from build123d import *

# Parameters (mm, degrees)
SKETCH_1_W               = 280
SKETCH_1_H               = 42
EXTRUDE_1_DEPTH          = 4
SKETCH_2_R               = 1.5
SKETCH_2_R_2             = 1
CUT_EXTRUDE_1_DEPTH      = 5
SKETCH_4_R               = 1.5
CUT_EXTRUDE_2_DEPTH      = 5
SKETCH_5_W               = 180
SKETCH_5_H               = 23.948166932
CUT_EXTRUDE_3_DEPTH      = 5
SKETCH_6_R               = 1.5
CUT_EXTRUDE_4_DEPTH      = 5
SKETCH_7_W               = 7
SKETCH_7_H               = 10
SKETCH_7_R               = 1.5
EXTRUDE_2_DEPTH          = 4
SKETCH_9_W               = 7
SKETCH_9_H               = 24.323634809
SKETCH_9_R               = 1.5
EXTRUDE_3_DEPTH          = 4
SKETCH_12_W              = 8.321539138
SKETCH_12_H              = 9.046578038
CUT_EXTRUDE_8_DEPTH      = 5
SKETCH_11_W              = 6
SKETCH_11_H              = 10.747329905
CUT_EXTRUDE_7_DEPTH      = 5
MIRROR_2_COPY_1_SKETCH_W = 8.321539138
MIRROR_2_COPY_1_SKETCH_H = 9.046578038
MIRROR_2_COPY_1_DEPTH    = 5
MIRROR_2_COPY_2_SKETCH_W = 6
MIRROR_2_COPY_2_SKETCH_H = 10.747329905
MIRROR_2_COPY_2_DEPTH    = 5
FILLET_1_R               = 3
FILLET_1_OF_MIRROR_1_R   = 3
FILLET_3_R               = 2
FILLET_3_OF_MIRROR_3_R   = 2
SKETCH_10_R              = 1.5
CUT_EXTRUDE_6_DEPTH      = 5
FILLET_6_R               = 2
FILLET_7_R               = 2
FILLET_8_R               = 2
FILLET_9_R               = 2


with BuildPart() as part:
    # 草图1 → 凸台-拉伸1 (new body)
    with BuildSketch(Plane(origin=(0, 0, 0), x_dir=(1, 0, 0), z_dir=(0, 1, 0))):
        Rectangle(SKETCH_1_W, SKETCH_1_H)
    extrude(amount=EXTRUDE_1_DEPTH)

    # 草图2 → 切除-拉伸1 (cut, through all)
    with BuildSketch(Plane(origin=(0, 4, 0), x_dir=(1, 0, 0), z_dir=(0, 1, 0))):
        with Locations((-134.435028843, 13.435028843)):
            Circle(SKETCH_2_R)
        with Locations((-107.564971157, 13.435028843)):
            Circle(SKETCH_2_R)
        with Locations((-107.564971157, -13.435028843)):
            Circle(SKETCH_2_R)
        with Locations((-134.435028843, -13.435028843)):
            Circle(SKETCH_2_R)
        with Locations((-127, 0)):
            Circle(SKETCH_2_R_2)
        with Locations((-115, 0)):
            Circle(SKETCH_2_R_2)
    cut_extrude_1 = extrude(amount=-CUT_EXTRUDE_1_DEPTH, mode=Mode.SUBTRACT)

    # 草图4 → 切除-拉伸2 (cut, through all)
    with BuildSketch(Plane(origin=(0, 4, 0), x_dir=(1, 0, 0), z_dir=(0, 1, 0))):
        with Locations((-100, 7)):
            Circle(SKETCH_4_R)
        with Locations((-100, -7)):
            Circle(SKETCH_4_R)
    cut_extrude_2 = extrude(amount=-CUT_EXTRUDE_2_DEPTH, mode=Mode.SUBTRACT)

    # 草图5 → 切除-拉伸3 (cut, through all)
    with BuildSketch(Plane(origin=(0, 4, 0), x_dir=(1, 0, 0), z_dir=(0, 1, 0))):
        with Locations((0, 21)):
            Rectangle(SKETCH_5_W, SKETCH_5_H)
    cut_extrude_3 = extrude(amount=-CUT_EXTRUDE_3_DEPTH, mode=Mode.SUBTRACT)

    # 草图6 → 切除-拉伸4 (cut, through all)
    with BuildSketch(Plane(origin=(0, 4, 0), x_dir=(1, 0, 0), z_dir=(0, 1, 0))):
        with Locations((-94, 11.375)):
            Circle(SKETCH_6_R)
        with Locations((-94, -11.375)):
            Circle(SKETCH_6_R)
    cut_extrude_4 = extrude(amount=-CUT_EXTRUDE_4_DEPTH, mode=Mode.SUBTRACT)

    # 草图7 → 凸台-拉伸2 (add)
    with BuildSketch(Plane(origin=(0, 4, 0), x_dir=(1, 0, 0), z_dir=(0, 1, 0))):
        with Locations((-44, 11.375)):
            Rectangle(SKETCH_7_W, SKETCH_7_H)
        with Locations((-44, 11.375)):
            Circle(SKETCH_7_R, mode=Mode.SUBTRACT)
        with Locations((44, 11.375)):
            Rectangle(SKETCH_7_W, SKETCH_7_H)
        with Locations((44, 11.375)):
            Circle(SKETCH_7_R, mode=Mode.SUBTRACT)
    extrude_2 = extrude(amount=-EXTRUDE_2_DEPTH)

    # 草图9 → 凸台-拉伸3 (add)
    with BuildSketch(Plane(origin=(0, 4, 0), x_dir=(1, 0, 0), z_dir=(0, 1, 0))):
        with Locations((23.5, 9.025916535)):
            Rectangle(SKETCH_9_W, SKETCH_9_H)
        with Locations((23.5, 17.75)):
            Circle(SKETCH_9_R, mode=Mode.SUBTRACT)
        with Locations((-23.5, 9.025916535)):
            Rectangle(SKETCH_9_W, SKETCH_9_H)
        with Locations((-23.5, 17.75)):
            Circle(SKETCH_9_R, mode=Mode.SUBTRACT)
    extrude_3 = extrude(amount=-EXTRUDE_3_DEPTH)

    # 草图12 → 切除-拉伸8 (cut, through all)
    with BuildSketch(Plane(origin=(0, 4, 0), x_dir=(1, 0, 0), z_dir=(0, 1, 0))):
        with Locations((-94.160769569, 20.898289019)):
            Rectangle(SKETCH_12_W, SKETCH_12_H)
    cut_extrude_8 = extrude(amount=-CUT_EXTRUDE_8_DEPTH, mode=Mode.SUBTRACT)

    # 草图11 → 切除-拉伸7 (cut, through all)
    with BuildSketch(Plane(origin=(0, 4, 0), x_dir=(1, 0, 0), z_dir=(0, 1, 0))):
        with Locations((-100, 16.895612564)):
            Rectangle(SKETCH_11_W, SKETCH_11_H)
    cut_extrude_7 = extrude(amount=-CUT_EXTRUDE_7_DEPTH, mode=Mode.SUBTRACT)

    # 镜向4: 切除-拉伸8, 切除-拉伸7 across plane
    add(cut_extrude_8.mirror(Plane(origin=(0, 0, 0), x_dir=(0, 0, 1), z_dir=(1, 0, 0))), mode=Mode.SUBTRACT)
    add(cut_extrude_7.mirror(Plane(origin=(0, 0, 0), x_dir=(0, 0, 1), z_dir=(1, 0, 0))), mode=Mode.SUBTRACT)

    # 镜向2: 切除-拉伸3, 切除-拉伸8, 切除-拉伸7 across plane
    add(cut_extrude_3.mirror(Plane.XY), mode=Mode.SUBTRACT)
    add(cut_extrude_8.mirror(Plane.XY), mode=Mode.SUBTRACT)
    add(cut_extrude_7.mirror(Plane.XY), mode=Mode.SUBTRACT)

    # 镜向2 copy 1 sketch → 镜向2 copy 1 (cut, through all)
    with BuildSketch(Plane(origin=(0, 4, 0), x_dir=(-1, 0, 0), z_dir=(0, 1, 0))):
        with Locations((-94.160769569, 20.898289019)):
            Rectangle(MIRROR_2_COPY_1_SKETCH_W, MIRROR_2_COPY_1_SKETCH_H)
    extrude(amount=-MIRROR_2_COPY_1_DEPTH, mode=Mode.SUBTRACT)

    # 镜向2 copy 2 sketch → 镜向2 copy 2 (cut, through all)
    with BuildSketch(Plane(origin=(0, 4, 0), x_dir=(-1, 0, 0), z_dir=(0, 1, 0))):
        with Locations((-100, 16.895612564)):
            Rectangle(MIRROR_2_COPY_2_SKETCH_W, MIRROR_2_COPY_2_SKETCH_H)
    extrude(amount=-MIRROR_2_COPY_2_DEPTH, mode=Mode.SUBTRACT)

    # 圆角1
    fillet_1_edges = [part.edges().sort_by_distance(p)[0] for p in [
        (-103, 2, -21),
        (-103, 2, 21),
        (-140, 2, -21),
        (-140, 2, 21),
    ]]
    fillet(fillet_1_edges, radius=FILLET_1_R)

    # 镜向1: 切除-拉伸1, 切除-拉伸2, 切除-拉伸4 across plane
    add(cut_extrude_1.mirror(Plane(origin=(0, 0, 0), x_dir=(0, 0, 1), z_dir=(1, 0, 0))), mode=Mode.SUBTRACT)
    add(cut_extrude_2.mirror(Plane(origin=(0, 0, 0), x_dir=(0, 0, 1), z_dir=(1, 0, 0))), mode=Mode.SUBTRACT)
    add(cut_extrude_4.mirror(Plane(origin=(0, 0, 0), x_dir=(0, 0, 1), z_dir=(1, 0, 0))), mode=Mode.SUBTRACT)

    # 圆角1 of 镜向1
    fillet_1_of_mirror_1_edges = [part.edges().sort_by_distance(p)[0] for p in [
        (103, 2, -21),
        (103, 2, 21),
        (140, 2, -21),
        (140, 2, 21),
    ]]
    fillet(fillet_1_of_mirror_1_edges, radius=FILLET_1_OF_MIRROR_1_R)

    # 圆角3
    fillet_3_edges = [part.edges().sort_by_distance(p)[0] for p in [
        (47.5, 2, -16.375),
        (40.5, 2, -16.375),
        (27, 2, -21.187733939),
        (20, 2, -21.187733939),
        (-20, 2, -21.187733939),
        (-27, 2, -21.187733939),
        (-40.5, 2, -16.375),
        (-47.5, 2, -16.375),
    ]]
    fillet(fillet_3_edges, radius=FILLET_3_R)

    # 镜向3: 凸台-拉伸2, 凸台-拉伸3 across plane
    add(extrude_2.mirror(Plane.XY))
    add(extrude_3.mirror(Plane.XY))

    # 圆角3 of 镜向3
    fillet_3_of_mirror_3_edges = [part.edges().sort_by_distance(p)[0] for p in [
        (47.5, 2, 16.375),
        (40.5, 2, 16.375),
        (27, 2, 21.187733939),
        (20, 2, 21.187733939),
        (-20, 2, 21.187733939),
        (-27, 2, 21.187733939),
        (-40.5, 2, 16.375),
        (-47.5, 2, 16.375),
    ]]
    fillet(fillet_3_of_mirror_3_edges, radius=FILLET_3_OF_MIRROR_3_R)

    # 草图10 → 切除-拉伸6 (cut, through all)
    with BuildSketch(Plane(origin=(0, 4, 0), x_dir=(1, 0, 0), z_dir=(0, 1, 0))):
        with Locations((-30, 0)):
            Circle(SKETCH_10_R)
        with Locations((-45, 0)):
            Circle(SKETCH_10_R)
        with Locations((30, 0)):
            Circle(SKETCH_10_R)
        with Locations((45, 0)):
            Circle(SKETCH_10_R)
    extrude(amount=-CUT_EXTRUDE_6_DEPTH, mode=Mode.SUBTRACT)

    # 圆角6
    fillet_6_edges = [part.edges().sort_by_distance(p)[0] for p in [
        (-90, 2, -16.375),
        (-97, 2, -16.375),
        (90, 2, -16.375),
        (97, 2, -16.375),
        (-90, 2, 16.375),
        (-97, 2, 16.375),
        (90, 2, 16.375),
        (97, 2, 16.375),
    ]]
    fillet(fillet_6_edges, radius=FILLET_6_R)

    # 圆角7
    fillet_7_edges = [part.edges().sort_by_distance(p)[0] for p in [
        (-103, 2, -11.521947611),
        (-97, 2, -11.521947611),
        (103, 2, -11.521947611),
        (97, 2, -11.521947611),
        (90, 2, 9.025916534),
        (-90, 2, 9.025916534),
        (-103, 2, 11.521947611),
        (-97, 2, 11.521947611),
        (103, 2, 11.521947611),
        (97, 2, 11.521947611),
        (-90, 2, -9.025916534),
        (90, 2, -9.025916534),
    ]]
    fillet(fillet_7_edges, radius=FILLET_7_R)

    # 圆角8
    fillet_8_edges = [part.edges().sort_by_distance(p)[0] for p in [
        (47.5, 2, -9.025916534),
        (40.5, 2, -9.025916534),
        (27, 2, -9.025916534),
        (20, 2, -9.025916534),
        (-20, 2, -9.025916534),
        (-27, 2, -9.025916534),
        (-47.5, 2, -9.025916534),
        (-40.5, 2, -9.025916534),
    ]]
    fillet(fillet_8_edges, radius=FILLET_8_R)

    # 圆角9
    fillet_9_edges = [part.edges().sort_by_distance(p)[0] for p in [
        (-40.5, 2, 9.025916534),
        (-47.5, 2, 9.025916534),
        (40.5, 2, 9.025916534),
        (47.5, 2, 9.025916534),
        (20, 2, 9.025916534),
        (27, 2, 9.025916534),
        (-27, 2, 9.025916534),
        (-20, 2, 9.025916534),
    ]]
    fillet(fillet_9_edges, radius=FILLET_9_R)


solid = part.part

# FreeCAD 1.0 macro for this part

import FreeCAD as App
import Part
import Sketcher


def edges_at(feature, points):
    """Names of the edges that pass closest to the given points."""
    edges = feature.Shape.Edges
    near = lambda p: min(range(len(edges)), key=lambda i: edges[i].distToShape(Part.Vertex(*p))[0])
    return sorted({f"Edge{near(p) + 1}" for p in points})


def add_polygon(sketch, points):
    """Adds a closed chain of lines whose ends are joined by coincident constraints."""
    first, n = sketch.GeometryCount, len(points)
    for a, b in zip(points, points[1:] + points[:1]):
        sketch.addGeometry(Part.LineSegment(App.Vector(*a, 0), App.Vector(*b, 0)), False)
    for i in range(n):
        sketch.addConstraint(Sketcher.Constraint("Coincident", first + i, 2, first + (i + 1) % n, 1))

doc = App.newDocument("Part")
body = doc.addObject("PartDesign::Body", "Body")

# Sketch on XZ plane
sketch1 = body.newObject("Sketcher::SketchObject", "Sketch")
sketch1.AttachmentSupport = (doc.getObject("XZ_Plane"), [""])
sketch1.MapMode = "FlatFace"
add_polygon(sketch1, [(-140, -21), (-140, 21), (140, 21), (140, -21)])  # lines 0-3
sketch1.addConstraint(Sketcher.Constraint("Vertical", 0))
sketch1.addConstraint(Sketcher.Constraint("Horizontal", 1))
sketch1.addConstraint(Sketcher.Constraint("Vertical", 2))
sketch1.addConstraint(Sketcher.Constraint("Horizontal", 3))
sketch1.addConstraint(Sketcher.Constraint("Symmetric", 0, 2, 2, 2, -1, 1))
sketch1.addConstraint(Sketcher.Constraint("DistanceX", 1, 1, 1, 2, 280.0))
sketch1.addConstraint(Sketcher.Constraint("DistanceY", 0, 1, 0, 2, 42.0))
pad1 = body.newObject("PartDesign::Pad", "Pad")
pad1.Profile = sketch1
pad1.Length = 4
pad1.Reversed = True

# Sketch on XZ plane
sketch2 = body.newObject("Sketcher::SketchObject", "Sketch001")
sketch2.AttachmentSupport = (doc.getObject("XZ_Plane"), [""])
sketch2.MapMode = "FlatFace"
sketch2.AttachmentOffset = App.Placement(App.Vector(0, 0, -4), App.Rotation())
sketch2.addGeometry(Part.Circle(App.Vector(-134.435029, -13.435029, 0), App.Vector(0, 0, 1), 1.5), False)
sketch2.addGeometry(Part.Circle(App.Vector(-107.564971, -13.435029, 0), App.Vector(0, 0, 1), 1.5), False)
sketch2.addGeometry(Part.Circle(App.Vector(-107.564971, 13.435029, 0), App.Vector(0, 0, 1), 1.5), False)
sketch2.addGeometry(Part.Circle(App.Vector(-134.435029, 13.435029, 0), App.Vector(0, 0, 1), 1.5), False)
sketch2.addGeometry(Part.Circle(App.Vector(-127, 0, 0), App.Vector(0, 0, 1), 1), False)
sketch2.addGeometry(Part.Circle(App.Vector(-115, 0, 0), App.Vector(0, 0, 1), 1), False)
sketch2.addConstraint(Sketcher.Constraint("Equal", 0, 1))
sketch2.addConstraint(Sketcher.Constraint("Equal", 1, 2))
sketch2.addConstraint(Sketcher.Constraint("Equal", 2, 3))
sketch2.addConstraint(Sketcher.Constraint("Equal", 4, 5))
sketch2.addConstraint(Sketcher.Constraint("Symmetric", 1, 3, 2, 3, -1))
sketch2.addConstraint(Sketcher.Constraint("Symmetric", 0, 3, 3, 3, -1))
sketch2.addConstraint(Sketcher.Constraint("PointOnObject", 4, 3, -1))
sketch2.addConstraint(Sketcher.Constraint("PointOnObject", 5, 3, -1))
sketch2.addConstraint(Sketcher.Constraint("Horizontal", 0, 3, 1, 3))
sketch2.addConstraint(Sketcher.Constraint("Diameter", 0, 3.0))
sketch2.addConstraint(Sketcher.Constraint("Diameter", 4, 2.0))
sketch2.addConstraint(Sketcher.Constraint("DistanceX", 4, 3, -1, 1, 127.0))
sketch2.addConstraint(Sketcher.Constraint("DistanceX", 5, 3, -1, 1, 115.0))
sketch2.addConstraint(Sketcher.Constraint("DistanceX", 0, 3, -1, 1, 134.435029))
sketch2.addConstraint(Sketcher.Constraint("DistanceY", 0, 3, -1, 1, 13.435029))
sketch2.addConstraint(Sketcher.Constraint("DistanceX", 1, 3, -1, 1, 107.564971))
pocket1 = body.newObject("PartDesign::Pocket", "Pocket")
pocket1.Profile = sketch2
pocket1.Type = "ThroughAll"
pocket1.Reversed = True

# Sketch on XZ plane
sketch3 = body.newObject("Sketcher::SketchObject", "Sketch002")
sketch3.AttachmentSupport = (doc.getObject("XZ_Plane"), [""])
sketch3.MapMode = "FlatFace"
sketch3.AttachmentOffset = App.Placement(App.Vector(0, 0, -4), App.Rotation())
sketch3.addGeometry(Part.Circle(App.Vector(-100, -7, 0), App.Vector(0, 0, 1), 1.5), False)
sketch3.addGeometry(Part.Circle(App.Vector(-100, 7, 0), App.Vector(0, 0, 1), 1.5), False)
sketch3.addConstraint(Sketcher.Constraint("Equal", 0, 1))
sketch3.addConstraint(Sketcher.Constraint("Symmetric", 0, 3, 1, 3, -1))
sketch3.addConstraint(Sketcher.Constraint("Diameter", 0, 3.0))
sketch3.addConstraint(Sketcher.Constraint("DistanceX", 0, 3, -1, 1, 100.0))
sketch3.addConstraint(Sketcher.Constraint("DistanceY", 0, 3, -1, 1, 7.0))
pocket2 = body.newObject("PartDesign::Pocket", "Pocket001")
pocket2.Profile = sketch3
pocket2.Type = "ThroughAll"
pocket2.Reversed = True

# Sketch on XZ plane
sketch4 = body.newObject("Sketcher::SketchObject", "Sketch003")
sketch4.AttachmentSupport = (doc.getObject("XZ_Plane"), [""])
sketch4.MapMode = "FlatFace"
sketch4.AttachmentOffset = App.Placement(App.Vector(0, 0, -4), App.Rotation())
add_polygon(sketch4, [(-90, -32.974083), (-90, -9.025917), (90, -9.025917), (90, -32.974083)])  # lines 0-3
sketch4.addConstraint(Sketcher.Constraint("Vertical", 0))
sketch4.addConstraint(Sketcher.Constraint("Horizontal", 1))
sketch4.addConstraint(Sketcher.Constraint("Vertical", 2))
sketch4.addConstraint(Sketcher.Constraint("Horizontal", 3))
sketch4.addConstraint(Sketcher.Constraint("DistanceX", 1, 1, 1, 2, 180.0))
sketch4.addConstraint(Sketcher.Constraint("DistanceX", 0, 2, -1, 1, 90.0))
sketch4.addConstraint(Sketcher.Constraint("DistanceY", 0, 1, 0, 2, 23.948167))
sketch4.addConstraint(Sketcher.Constraint("DistanceY", 0, 2, -1, 1, 9.025917))
pocket3 = body.newObject("PartDesign::Pocket", "Pocket002")
pocket3.Profile = sketch4
pocket3.Type = "ThroughAll"
pocket3.Reversed = True

# Sketch on XZ plane
sketch5 = body.newObject("Sketcher::SketchObject", "Sketch004")
sketch5.AttachmentSupport = (doc.getObject("XZ_Plane"), [""])
sketch5.MapMode = "FlatFace"
sketch5.AttachmentOffset = App.Placement(App.Vector(0, 0, -4), App.Rotation())
sketch5.addGeometry(Part.Circle(App.Vector(-94, -11.375, 0), App.Vector(0, 0, 1), 1.5), False)
sketch5.addGeometry(Part.Circle(App.Vector(-94, 11.375, 0), App.Vector(0, 0, 1), 1.5), False)
sketch5.addConstraint(Sketcher.Constraint("Equal", 0, 1))
sketch5.addConstraint(Sketcher.Constraint("Symmetric", 0, 3, 1, 3, -1))
sketch5.addConstraint(Sketcher.Constraint("Diameter", 0, 3.0))
sketch5.addConstraint(Sketcher.Constraint("DistanceX", 0, 3, -1, 1, 94.0))
sketch5.addConstraint(Sketcher.Constraint("DistanceY", 0, 3, 1, 3, 22.75))
pocket4 = body.newObject("PartDesign::Pocket", "Pocket003")
pocket4.Profile = sketch5
pocket4.Type = "ThroughAll"
pocket4.Reversed = True

# Sketch on XZ plane
sketch6 = body.newObject("Sketcher::SketchObject", "Sketch005")
sketch6.AttachmentSupport = (doc.getObject("XZ_Plane"), [""])
sketch6.MapMode = "FlatFace"
sketch6.AttachmentOffset = App.Placement(App.Vector(0, 0, -4), App.Rotation())
add_polygon(sketch6, [(-47.5, -16.375), (-47.5, -6.375), (-40.5, -6.375), (-40.5, -16.375)])  # lines 0-3
sketch6.addGeometry(Part.Circle(App.Vector(-44, -11.375, 0), App.Vector(0, 0, 1), 1.5), False)  # 4
add_polygon(sketch6, [(40.5, -16.375), (40.5, -6.375), (47.5, -6.375), (47.5, -16.375)])  # lines 5-8
sketch6.addGeometry(Part.Circle(App.Vector(44, -11.375, 0), App.Vector(0, 0, 1), 1.5), False)  # 9
sketch6.addConstraint(Sketcher.Constraint("Vertical", 0))
sketch6.addConstraint(Sketcher.Constraint("Horizontal", 1))
sketch6.addConstraint(Sketcher.Constraint("Vertical", 2))
sketch6.addConstraint(Sketcher.Constraint("Horizontal", 3))
sketch6.addConstraint(Sketcher.Constraint("Vertical", 5))
sketch6.addConstraint(Sketcher.Constraint("Horizontal", 6))
sketch6.addConstraint(Sketcher.Constraint("Vertical", 7))
sketch6.addConstraint(Sketcher.Constraint("Horizontal", 8))
sketch6.addConstraint(Sketcher.Constraint("Equal", 4, 9))
sketch6.addConstraint(Sketcher.Constraint("Symmetric", 4, 3, 9, 3, -2))
sketch6.addConstraint(Sketcher.Constraint("Symmetric", 1, 2, 5, 2, -2))
sketch6.addConstraint(Sketcher.Constraint("Symmetric", 3, 2, 7, 2, -2))
sketch6.addConstraint(Sketcher.Constraint("Diameter", 4, 3.0))
sketch6.addConstraint(Sketcher.Constraint("DistanceX", 1, 1, 1, 2, 7.0))
sketch6.addConstraint(Sketcher.Constraint("DistanceY", 0, 1, 0, 2, 10.0))
sketch6.addConstraint(Sketcher.Constraint("DistanceX", 4, 3, -1, 1, 44.0))
sketch6.addConstraint(Sketcher.Constraint("DistanceY", 4, 3, 0, 2, 5.0))
sketch6.addConstraint(Sketcher.Constraint("DistanceX", 1, 2, 5, 2, 81.0))
sketch6.addConstraint(Sketcher.Constraint("DistanceY", 4, 3, -1, 1, 11.375))
pad2 = body.newObject("PartDesign::Pad", "Pad001")
pad2.Profile = sketch6
pad2.Length = 4

# Sketch on XZ plane
sketch7 = body.newObject("Sketcher::SketchObject", "Sketch006")
sketch7.AttachmentSupport = (doc.getObject("XZ_Plane"), [""])
sketch7.MapMode = "FlatFace"
sketch7.AttachmentOffset = App.Placement(App.Vector(0, 0, -4), App.Rotation())
add_polygon(sketch7, [(20, -21.187734), (20, 3.135901), (27, 3.135901), (27, -21.187734)])  # lines 0-3
sketch7.addGeometry(Part.Circle(App.Vector(23.5, -17.75, 0), App.Vector(0, 0, 1), 1.5), False)  # 4
add_polygon(sketch7, [(-27, -21.187734), (-27, 3.135901), (-20, 3.135901), (-20, -21.187734)])  # lines 5-8
sketch7.addGeometry(Part.Circle(App.Vector(-23.5, -17.75, 0), App.Vector(0, 0, 1), 1.5), False)  # 9
sketch7.addConstraint(Sketcher.Constraint("Vertical", 0))
sketch7.addConstraint(Sketcher.Constraint("Horizontal", 1))
sketch7.addConstraint(Sketcher.Constraint("Vertical", 2))
sketch7.addConstraint(Sketcher.Constraint("Horizontal", 3))
sketch7.addConstraint(Sketcher.Constraint("Vertical", 5))
sketch7.addConstraint(Sketcher.Constraint("Horizontal", 6))
sketch7.addConstraint(Sketcher.Constraint("Vertical", 7))
sketch7.addConstraint(Sketcher.Constraint("Horizontal", 8))
sketch7.addConstraint(Sketcher.Constraint("Equal", 4, 9))
sketch7.addConstraint(Sketcher.Constraint("Symmetric", 4, 3, 9, 3, -2))
sketch7.addConstraint(Sketcher.Constraint("Symmetric", 1, 2, 5, 2, -2))
sketch7.addConstraint(Sketcher.Constraint("Symmetric", 3, 2, 7, 2, -2))
sketch7.addConstraint(Sketcher.Constraint("Diameter", 4, 3.0))
sketch7.addConstraint(Sketcher.Constraint("DistanceX", 1, 1, 1, 2, 7.0))
sketch7.addConstraint(Sketcher.Constraint("DistanceX", -1, 1, 0, 2, 20.0))
sketch7.addConstraint(Sketcher.Constraint("DistanceX", 9, 3, 4, 3, 47.0))
sketch7.addConstraint(Sketcher.Constraint("DistanceY", 4, 3, -1, 1, 17.75))
sketch7.addConstraint(Sketcher.Constraint("DistanceY", -1, 1, 0, 2, 3.135901))
sketch7.addConstraint(Sketcher.Constraint("DistanceY", 0, 1, 0, 2, 24.323635))
pad3 = body.newObject("PartDesign::Pad", "Pad002")
pad3.Profile = sketch7
pad3.Length = 4

# Sketch on XZ plane
sketch8 = body.newObject("Sketcher::SketchObject", "Sketch007")
sketch8.AttachmentSupport = (doc.getObject("XZ_Plane"), [""])
sketch8.MapMode = "FlatFace"
sketch8.AttachmentOffset = App.Placement(App.Vector(0, 0, -4), App.Rotation())
add_polygon(sketch8, [(-98.321539, -25.421578), (-98.321539, -16.375), (-90, -16.375), (-90, -25.421578)])  # lines 0-3
sketch8.addConstraint(Sketcher.Constraint("Vertical", 0))
sketch8.addConstraint(Sketcher.Constraint("Horizontal", 1))
sketch8.addConstraint(Sketcher.Constraint("Vertical", 2))
sketch8.addConstraint(Sketcher.Constraint("Horizontal", 3))
sketch8.addConstraint(Sketcher.Constraint("DistanceX", 1, 2, -1, 1, 90.0))
sketch8.addConstraint(Sketcher.Constraint("DistanceY", 0, 2, -1, 1, 16.375))
sketch8.addConstraint(Sketcher.Constraint("DistanceX", 1, 1, 1, 2, 8.321539))
sketch8.addConstraint(Sketcher.Constraint("DistanceY", 0, 1, 0, 2, 9.046578))
pocket5 = body.newObject("PartDesign::Pocket", "Pocket004")
pocket5.Profile = sketch8
pocket5.Type = "ThroughAll"
pocket5.Reversed = True

# Sketch on XZ plane
sketch9 = body.newObject("Sketcher::SketchObject", "Sketch008")
sketch9.AttachmentSupport = (doc.getObject("XZ_Plane"), [""])
sketch9.MapMode = "FlatFace"
sketch9.AttachmentOffset = App.Placement(App.Vector(0, 0, -4), App.Rotation())
add_polygon(sketch9, [(-103, -22.269278), (-103, -11.521948), (-97, -11.521948), (-97, -22.269278)])  # lines 0-3
sketch9.addConstraint(Sketcher.Constraint("Vertical", 0))
sketch9.addConstraint(Sketcher.Constraint("Horizontal", 1))
sketch9.addConstraint(Sketcher.Constraint("Vertical", 2))
sketch9.addConstraint(Sketcher.Constraint("Horizontal", 3))
sketch9.addConstraint(Sketcher.Constraint("DistanceX", 1, 1, 1, 2, 6.0))
sketch9.addConstraint(Sketcher.Constraint("DistanceX", 0, 2, -1, 1, 103.0))
sketch9.addConstraint(Sketcher.Constraint("DistanceY", 0, 1, 0, 2, 10.74733))
sketch9.addConstraint(Sketcher.Constraint("DistanceY", 0, 2, -1, 1, 11.521948))
pocket6 = body.newObject("PartDesign::Pocket", "Pocket005")
pocket6.Profile = sketch9
pocket6.Type = "ThroughAll"
pocket6.Reversed = True
doc.recompute()

mirrored = body.newObject("PartDesign::Mirrored", "Mirrored")
mirrored.Originals = [pocket5, pocket6]
mirrored.MirrorPlane = (doc.getObject("YZ_Plane"), [""])
body.Tip = mirrored
doc.recompute()

mirrored2 = body.newObject("PartDesign::Mirrored", "Mirrored001")
mirrored2.Originals = [pocket3, pocket5, pocket6]
mirrored2.MirrorPlane = (doc.getObject("XY_Plane"), [""])
body.Tip = mirrored2

# Sketch on XZ plane
sketch10 = body.newObject("Sketcher::SketchObject", "Sketch009")
sketch10.AttachmentSupport = (doc.getObject("XZ_Plane"), [""])
sketch10.MapMode = "FlatFace"
sketch10.AttachmentOffset = App.Placement(App.Vector(0, 0, -4), App.Rotation())
add_polygon(sketch10, [(98.321539, 25.421578), (98.321539, 16.375), (90, 16.375), (90, 25.421578)])  # lines 0-3
sketch10.addConstraint(Sketcher.Constraint("Vertical", 0))
sketch10.addConstraint(Sketcher.Constraint("Horizontal", 1))
sketch10.addConstraint(Sketcher.Constraint("Vertical", 2))
sketch10.addConstraint(Sketcher.Constraint("Horizontal", 3))
sketch10.addConstraint(Sketcher.Constraint("DistanceX", -1, 1, 1, 2, 90.0))
sketch10.addConstraint(Sketcher.Constraint("DistanceY", -1, 1, 0, 2, 16.375))
sketch10.addConstraint(Sketcher.Constraint("DistanceX", 1, 2, 1, 1, 8.321539))
sketch10.addConstraint(Sketcher.Constraint("DistanceY", 0, 2, 0, 1, 9.046578))
pocket7 = body.newObject("PartDesign::Pocket", "Pocket006")
pocket7.Profile = sketch10
pocket7.Type = "ThroughAll"
pocket7.Reversed = True

# Sketch on XZ plane
sketch11 = body.newObject("Sketcher::SketchObject", "Sketch010")
sketch11.AttachmentSupport = (doc.getObject("XZ_Plane"), [""])
sketch11.MapMode = "FlatFace"
sketch11.AttachmentOffset = App.Placement(App.Vector(0, 0, -4), App.Rotation())
add_polygon(sketch11, [(103, 22.269278), (103, 11.521948), (97, 11.521948), (97, 22.269278)])  # lines 0-3
sketch11.addConstraint(Sketcher.Constraint("Vertical", 0))
sketch11.addConstraint(Sketcher.Constraint("Horizontal", 1))
sketch11.addConstraint(Sketcher.Constraint("Vertical", 2))
sketch11.addConstraint(Sketcher.Constraint("Horizontal", 3))
sketch11.addConstraint(Sketcher.Constraint("DistanceX", 1, 2, 1, 1, 6.0))
sketch11.addConstraint(Sketcher.Constraint("DistanceX", -1, 1, 0, 2, 103.0))
sketch11.addConstraint(Sketcher.Constraint("DistanceY", 0, 2, 0, 1, 10.74733))
sketch11.addConstraint(Sketcher.Constraint("DistanceY", -1, 1, 0, 2, 11.521948))
pocket8 = body.newObject("PartDesign::Pocket", "Pocket007")
pocket8.Profile = sketch11
pocket8.Type = "ThroughAll"
pocket8.Reversed = True
doc.recompute()

fillet = body.newObject("PartDesign::Fillet", "Fillet")
fillet.Base = (pocket8, edges_at(pocket8, [
    (-103, 2, -21),
    (-103, 2, 21),
    (-140, 2, -21),
    (-140, 2, 21),
]))
fillet.Radius = 3
doc.recompute()

mirrored3 = body.newObject("PartDesign::Mirrored", "Mirrored002")
mirrored3.Originals = [pocket1, pocket2, pocket4]
mirrored3.MirrorPlane = (doc.getObject("YZ_Plane"), [""])
body.Tip = mirrored3
doc.recompute()

fillet2 = body.newObject("PartDesign::Fillet", "Fillet001")
fillet2.Base = (mirrored3, edges_at(mirrored3, [
    (103, 2, -21),
    (103, 2, 21),
    (140, 2, -21),
    (140, 2, 21),
]))
fillet2.Radius = 3
doc.recompute()

fillet3 = body.newObject("PartDesign::Fillet", "Fillet002")
fillet3.Base = (fillet2, edges_at(fillet2, [
    (47.5, 2, -16.375),
    (40.5, 2, -16.375),
    (27, 2, -21.188),
    (20, 2, -21.188),
    (-20, 2, -21.188),
    (-27, 2, -21.188),
    (-40.5, 2, -16.375),
    (-47.5, 2, -16.375),
]))
fillet3.Radius = 2
doc.recompute()

mirrored4 = body.newObject("PartDesign::Mirrored", "Mirrored003")
mirrored4.Originals = [pad2, pad3]
mirrored4.MirrorPlane = (doc.getObject("XY_Plane"), [""])
body.Tip = mirrored4
doc.recompute()

fillet4 = body.newObject("PartDesign::Fillet", "Fillet003")
fillet4.Base = (mirrored4, edges_at(mirrored4, [
    (47.5, 2, 16.375),
    (40.5, 2, 16.375),
    (27, 2, 21.188),
    (20, 2, 21.188),
    (-20, 2, 21.188),
    (-27, 2, 21.188),
    (-40.5, 2, 16.375),
    (-47.5, 2, 16.375),
]))
fillet4.Radius = 2

# Sketch on XZ plane
sketch12 = body.newObject("Sketcher::SketchObject", "Sketch011")
sketch12.AttachmentSupport = (doc.getObject("XZ_Plane"), [""])
sketch12.MapMode = "FlatFace"
sketch12.AttachmentOffset = App.Placement(App.Vector(0, 0, -4), App.Rotation())
sketch12.addGeometry(Part.Circle(App.Vector(-30, 0, 0), App.Vector(0, 0, 1), 1.5), False)
sketch12.addGeometry(Part.Circle(App.Vector(-45, 0, 0), App.Vector(0, 0, 1), 1.5), False)
sketch12.addGeometry(Part.Circle(App.Vector(30, 0, 0), App.Vector(0, 0, 1), 1.5), False)
sketch12.addGeometry(Part.Circle(App.Vector(45, 0, 0), App.Vector(0, 0, 1), 1.5), False)
sketch12.addConstraint(Sketcher.Constraint("Equal", 0, 1))
sketch12.addConstraint(Sketcher.Constraint("Equal", 1, 2))
sketch12.addConstraint(Sketcher.Constraint("Equal", 2, 3))
sketch12.addConstraint(Sketcher.Constraint("Symmetric", 0, 3, 2, 3, -1, 1))
sketch12.addConstraint(Sketcher.Constraint("Symmetric", 1, 3, 3, 3, -1, 1))
sketch12.addConstraint(Sketcher.Constraint("PointOnObject", 0, 3, -1))
sketch12.addConstraint(Sketcher.Constraint("PointOnObject", 1, 3, -1))
sketch12.addConstraint(Sketcher.Constraint("Diameter", 0, 3.0))
sketch12.addConstraint(Sketcher.Constraint("DistanceX", 0, 3, -1, 1, 30.0))
sketch12.addConstraint(Sketcher.Constraint("DistanceX", 1, 3, -1, 1, 45.0))
pocket9 = body.newObject("PartDesign::Pocket", "Pocket008")
pocket9.Profile = sketch12
pocket9.Type = "ThroughAll"
pocket9.Reversed = True
doc.recompute()

fillet5 = body.newObject("PartDesign::Fillet", "Fillet004")
fillet5.Base = (pocket9, edges_at(pocket9, [
    (-90, 2, -16.375),
    (-97, 2, -16.375),
    (90, 2, -16.375),
    (97, 2, -16.375),
    (-90, 2, 16.375),
    (-97, 2, 16.375),
    (90, 2, 16.375),
    (97, 2, 16.375),
]))
fillet5.Radius = 2
doc.recompute()

fillet6 = body.newObject("PartDesign::Fillet", "Fillet005")
fillet6.Base = (fillet5, edges_at(fillet5, [
    (-103, 2, -11.522),
    (-97, 2, -11.522),
    (103, 2, -11.522),
    (97, 2, -11.522),
    (90, 2, 9.026),
    (-90, 2, 9.026),
    (-103, 2, 11.522),
    (-97, 2, 11.522),
    (103, 2, 11.522),
    (97, 2, 11.522),
    (-90, 2, -9.026),
    (90, 2, -9.026),
]))
fillet6.Radius = 2
doc.recompute()

fillet7 = body.newObject("PartDesign::Fillet", "Fillet006")
fillet7.Base = (fillet6, edges_at(fillet6, [
    (47.5, 2, -9.026),
    (40.5, 2, -9.026),
    (27, 2, -9.026),
    (20, 2, -9.026),
    (-20, 2, -9.026),
    (-27, 2, -9.026),
    (-47.5, 2, -9.026),
    (-40.5, 2, -9.026),
]))
fillet7.Radius = 2
doc.recompute()

fillet8 = body.newObject("PartDesign::Fillet", "Fillet007")
fillet8.Base = (fillet7, edges_at(fillet7, [
    (-40.5, 2, 9.026),
    (-47.5, 2, 9.026),
    (40.5, 2, 9.026),
    (47.5, 2, 9.026),
    (20, 2, 9.026),
    (27, 2, 9.026),
    (-27, 2, 9.026),
    (-20, 2, 9.026),
]))
fillet8.Radius = 2

doc.recompute()
